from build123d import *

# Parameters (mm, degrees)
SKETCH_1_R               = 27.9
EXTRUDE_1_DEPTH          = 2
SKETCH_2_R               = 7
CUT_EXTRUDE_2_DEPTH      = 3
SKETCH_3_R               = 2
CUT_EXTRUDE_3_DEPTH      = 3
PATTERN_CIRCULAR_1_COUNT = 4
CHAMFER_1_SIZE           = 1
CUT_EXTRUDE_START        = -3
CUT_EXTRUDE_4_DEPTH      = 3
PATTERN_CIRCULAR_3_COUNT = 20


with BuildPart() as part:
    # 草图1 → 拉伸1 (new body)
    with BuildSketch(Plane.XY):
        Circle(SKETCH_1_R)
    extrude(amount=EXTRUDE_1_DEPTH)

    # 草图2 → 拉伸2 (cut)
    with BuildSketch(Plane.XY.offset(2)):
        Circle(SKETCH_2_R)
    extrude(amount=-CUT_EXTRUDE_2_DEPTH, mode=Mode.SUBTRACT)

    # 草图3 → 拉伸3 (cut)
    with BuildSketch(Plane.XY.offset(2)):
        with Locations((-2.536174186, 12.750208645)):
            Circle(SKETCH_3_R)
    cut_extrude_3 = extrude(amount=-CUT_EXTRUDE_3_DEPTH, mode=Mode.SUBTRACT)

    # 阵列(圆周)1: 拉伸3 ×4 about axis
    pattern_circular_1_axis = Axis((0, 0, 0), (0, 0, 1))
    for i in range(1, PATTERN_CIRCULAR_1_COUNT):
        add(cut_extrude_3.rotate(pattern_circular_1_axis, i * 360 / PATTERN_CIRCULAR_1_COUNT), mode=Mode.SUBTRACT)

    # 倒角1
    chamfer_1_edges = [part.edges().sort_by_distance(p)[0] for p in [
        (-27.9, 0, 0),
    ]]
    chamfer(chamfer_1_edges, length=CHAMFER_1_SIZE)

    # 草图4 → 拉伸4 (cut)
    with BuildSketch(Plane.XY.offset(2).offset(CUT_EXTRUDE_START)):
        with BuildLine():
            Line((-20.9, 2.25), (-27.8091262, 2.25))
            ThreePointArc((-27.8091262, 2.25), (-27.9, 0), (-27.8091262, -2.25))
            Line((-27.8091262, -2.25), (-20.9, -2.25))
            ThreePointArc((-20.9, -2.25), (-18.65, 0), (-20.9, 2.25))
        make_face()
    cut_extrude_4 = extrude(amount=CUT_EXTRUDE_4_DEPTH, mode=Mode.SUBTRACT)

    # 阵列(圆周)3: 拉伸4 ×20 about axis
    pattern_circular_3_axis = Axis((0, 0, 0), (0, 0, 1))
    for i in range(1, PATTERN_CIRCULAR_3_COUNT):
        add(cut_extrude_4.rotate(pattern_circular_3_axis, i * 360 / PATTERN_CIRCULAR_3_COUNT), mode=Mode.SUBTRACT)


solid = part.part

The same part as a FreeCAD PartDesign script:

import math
import FreeCAD as App
import Part
import Sketcher
from FreeCAD import Vector


def edges_at(feature, points):
    """Names of the edges that pass closest to the given points."""
    edges = feature.Shape.Edges
    near = lambda p: min(range(len(edges)), key=lambda i: edges[i].distToShape(Part.Vertex(*p))[0])
    return sorted({f"Edge{near(p) + 1}" for p in points})

doc = App.newDocument("Part")
body = doc.addObject("PartDesign::Body", "Body")

sketch1 = doc.addObject("Sketcher::SketchObject", "Sketch")
body.addObject(sketch1)
sketch1.AttachmentSupport = (doc.XY_Plane, [""])
sketch1.MapMode = "FlatFace"
sketch1.addGeometry(Part.Circle(Vector(0, 0, 0), Vector(0, 0, 1), 27.9), False)
sketch1.addConstraint([
    Sketcher.Constraint("Coincident", 0, 3, -1, 1),
    Sketcher.Constraint("Diameter", 0, 55.8),
])
pad1 = doc.addObject("PartDesign::Pad", "Pad")
body.addObject(pad1)
pad1.Profile = sketch1
pad1.Length = 2

sketch2 = doc.addObject("Sketcher::SketchObject", "Sketch001")
body.addObject(sketch2)
sketch2.AttachmentSupport = (doc.XY_Plane, [""])
sketch2.MapMode = "FlatFace"
sketch2.AttachmentOffset = App.Placement(Vector(0, 0, 2), App.Rotation())
sketch2.addGeometry(Part.Circle(Vector(0, 0, 0), Vector(0, 0, 1), 7), False)
sketch2.addConstraint([
    Sketcher.Constraint("Coincident", 0, 3, -1, 1),
    Sketcher.Constraint("Diameter", 0, 14.0),
])
pocket1 = doc.addObject("PartDesign::Pocket", "Pocket")
body.addObject(pocket1)
pocket1.Profile = sketch2
pocket1.Length = 3

sketch3 = doc.addObject("Sketcher::SketchObject", "Sketch002")
body.addObject(sketch3)
sketch3.AttachmentSupport = (doc.XY_Plane, [""])
sketch3.MapMode = "FlatFace"
sketch3.AttachmentOffset = App.Placement(Vector(0, 0, 2), App.Rotation())
sketch3.addGeometry(Part.Circle(Vector(-2.536174, 12.750209, 0), Vector(0, 0, 1), 2), False)
sketch3.addConstraint([
    Sketcher.Constraint("Diameter", 0, 4.0),
    Sketcher.Constraint("DistanceY", -1, 1, 0, 3, 12.750209),
    Sketcher.Constraint("DistanceX", 0, 3, -1, 1, 2.536174),
])
pocket2 = doc.addObject("PartDesign::Pocket", "Pocket001")
body.addObject(pocket2)
pocket2.Profile = sketch3
pocket2.Length = 3
doc.recompute()

polarpattern = doc.addObject("PartDesign::PolarPattern", "PolarPattern")
body.addObject(polarpattern)
polarpattern.Originals = [pocket2]
polarpattern.Axis = (doc.Z_Axis, [""])
polarpattern.Angle = 360
polarpattern.Occurrences = 4
body.Tip = polarpattern
doc.recompute()

chamfer = doc.addObject("PartDesign::Chamfer", "Chamfer")
body.addObject(chamfer)
chamfer.Base = (polarpattern, edges_at(polarpattern, [(-27.9, 0, 0)]))
chamfer.Size = 1

sketch4 = doc.addObject("Sketcher::SketchObject", "Sketch003")
body.addObject(sketch4)
sketch4.AttachmentSupport = (doc.XY_Plane, [""])
sketch4.MapMode = "FlatFace"
sketch4.AttachmentOffset = App.Placement(Vector(0, 0, -1), App.Rotation())
sketch4.addGeometry([
    Part.LineSegment(Vector(-20.9, 2.25, 0), Vector(-27.809126, 2.25, 0)),
    Part.ArcOfCircle(Part.Circle(Vector(0, 0, 0), Vector(0, 0, 1), 27.9), math.radians(175.374349), math.radians(184.625651)),
    Part.LineSegment(Vector(-27.809126, -2.25, 0), Vector(-20.9, -2.25, 0)),
    Part.ArcOfCircle(Part.Circle(Vector(-20.9, 0, 0), Vector(0, 0, 1), 2.25), math.radians(-90), math.radians(90)),
], False)
sketch4.addConstraint([
    Sketcher.Constraint("Coincident", 0, 2, 1, 1),
    Sketcher.Constraint("Coincident", 1, 2, 2, 1),
    Sketcher.Constraint("Tangent", 2, 2, 3, 1),
    Sketcher.Constraint("Tangent", 3, 2, 0, 1),
    Sketcher.Constraint("Horizontal", 0),
    Sketcher.Constraint("Horizontal", 2),
    Sketcher.Constraint("Coincident", 1, 3, -1, 1),
    Sketcher.Constraint("PointOnObject", 3, 3, -1),
    Sketcher.Constraint("Radius", 1, 27.9),
    Sketcher.Constraint("Radius", 3, 2.25),
    Sketcher.Constraint("DistanceX", 3, 3, -1, 1, 20.9),
])
pocket3 = doc.addObject("PartDesign::Pocket", "Pocket002")
body.addObject(pocket3)
pocket3.Profile = sketch4
pocket3.Length = 3
pocket3.Reversed = True
doc.recompute()

polarpattern2 = doc.addObject("PartDesign::PolarPattern", "PolarPattern001")
body.addObject(polarpattern2)
polarpattern2.Originals = [pocket3]
polarpattern2.Axis = (doc.Z_Axis, [""])
polarpattern2.Angle = 360
polarpattern2.Occurrences = 20
body.Tip = polarpattern2

doc.recompute()
